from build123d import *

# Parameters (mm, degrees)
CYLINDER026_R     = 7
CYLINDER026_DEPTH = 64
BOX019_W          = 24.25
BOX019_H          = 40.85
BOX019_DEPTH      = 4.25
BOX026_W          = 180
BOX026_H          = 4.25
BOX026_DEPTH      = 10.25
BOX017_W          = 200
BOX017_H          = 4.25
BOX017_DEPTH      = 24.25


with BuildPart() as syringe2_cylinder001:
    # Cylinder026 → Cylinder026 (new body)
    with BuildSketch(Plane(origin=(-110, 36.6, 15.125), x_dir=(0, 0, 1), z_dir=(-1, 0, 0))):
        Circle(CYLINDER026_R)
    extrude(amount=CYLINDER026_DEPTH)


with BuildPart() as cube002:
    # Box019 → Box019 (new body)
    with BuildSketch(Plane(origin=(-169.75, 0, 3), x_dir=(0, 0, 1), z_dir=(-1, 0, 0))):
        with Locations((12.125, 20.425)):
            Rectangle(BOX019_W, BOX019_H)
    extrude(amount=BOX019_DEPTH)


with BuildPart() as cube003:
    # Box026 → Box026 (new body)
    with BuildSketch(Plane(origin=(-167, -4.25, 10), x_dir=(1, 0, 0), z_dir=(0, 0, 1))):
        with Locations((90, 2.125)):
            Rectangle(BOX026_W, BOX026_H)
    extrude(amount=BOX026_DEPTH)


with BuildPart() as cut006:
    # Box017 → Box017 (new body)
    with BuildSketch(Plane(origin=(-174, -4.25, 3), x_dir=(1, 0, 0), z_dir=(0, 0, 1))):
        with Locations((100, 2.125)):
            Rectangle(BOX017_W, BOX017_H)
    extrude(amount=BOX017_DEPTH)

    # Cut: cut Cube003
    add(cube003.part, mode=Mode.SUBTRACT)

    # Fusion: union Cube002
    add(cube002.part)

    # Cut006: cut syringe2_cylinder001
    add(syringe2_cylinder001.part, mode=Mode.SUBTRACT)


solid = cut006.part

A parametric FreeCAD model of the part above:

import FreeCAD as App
import Part
import Sketcher

V = App.Vector
Q = App.Units.Quantity

doc = App.newDocument("Part")
params = doc.addObject("Spreadsheet::Sheet", "Params")
for row, (alias, value) in enumerate([
    ("sketch1_diameter", "14 mm"),
    ("pad1_length", "64 mm"),
    ("sketch2_width", "40.85 mm"),
    ("sketch2_height", "24.25 mm"),
    ("pad2_length", "4.25 mm"),
    ("sketch3_width", "180 mm"),
    ("sketch3_height", "4.25 mm"),
    ("pad3_length", "10.25 mm"),
    ("sketch4_width", "200 mm"),
    ("sketch4_height", "4.25 mm"),
    ("pad4_length", "24.25 mm"),
], start=1):
    params.set(f"A{row}", alias)
    params.set(f"B{row}", "=" + value)
    params.setAlias(f"B{row}", alias)

body = doc.addObject("PartDesign::Body", "Body")

sketch1 = doc.addObject("Sketcher::SketchObject", "Sketch")
body.addObject(sketch1)
sketch1.AttachmentSupport = (doc.YZ_Plane, [""])
sketch1.MapMode = "FlatFace"
sketch1.AttachmentOffset = App.Placement(V(0, 0, -110), App.Rotation())
sketch1.addGeometry(Part.Circle(V(37, 15, 0), V(0, 0, 1), 7), False)
sketch1.addConstraint([
    Sketcher.Constraint("Diameter", 0, Q("14 mm")),
    Sketcher.Constraint("DistanceX", -1, 1, 0, 3, Q("36.6 mm")),
    Sketcher.Constraint("DistanceY", -1, 1, 0, 3, Q("15.125 mm")),
])
sketch1.setExpression("Constraints[0]", "Params.sketch1_diameter")
pad1 = doc.addObject("PartDesign::Pad", "Pad")
body.addObject(pad1)
pad1.Profile = sketch1
pad1.setExpression("Length", "Params.pad1_length")
pad1.Reversed = True
body2 = doc.addObject("PartDesign::Body", "Body001")

sketch2 = doc.addObject("Sketcher::SketchObject", "Sketch001")
body2.addObject(sketch2)
sketch2.AttachmentSupport = (doc.getObject("YZ_Plane001"), [""])
sketch2.MapMode = "FlatFace"
sketch2.AttachmentOffset = App.Placement(V(0, 0, -169.75), App.Rotation())
sketch2.addGeometry([
    Part.LineSegment(V(41, 3, 0), V(0, 3, 0)),
    Part.LineSegment(V(0, 3, 0), V(0, 27, 0)),
    Part.LineSegment(V(0, 27, 0), V(41, 27, 0)),
    Part.LineSegment(V(41, 27, 0), V(41, 3, 0)),
], False)
sketch2.addConstraint([
    Sketcher.Constraint("Coincident", 0, 2, 1, 1),
    Sketcher.Constraint("Coincident", 1, 2, 2, 1),
    Sketcher.Constraint("Coincident", 2, 2, 3, 1),
    Sketcher.Constraint("Coincident", 3, 2, 0, 1),
    Sketcher.Constraint("Horizontal", 0),
    Sketcher.Constraint("Vertical", 1),
    Sketcher.Constraint("Horizontal", 2),
    Sketcher.Constraint("Vertical", 3),
    Sketcher.Constraint("PointOnObject", 0, 2, -2),
    Sketcher.Constraint("DistanceY", -1, 1, 0, 2, Q("3 mm")),
    Sketcher.Constraint("DistanceX", 0, 2, 0, 1, Q("40.85 mm")),
    Sketcher.Constraint("DistanceY", 1, 1, 1, 2, Q("24.25 mm")),
])
sketch2.setExpression("Constraints[10]", "Params.sketch2_width")
sketch2.setExpression("Constraints[11]", "Params.sketch2_height")
pad2 = doc.addObject("PartDesign::Pad", "Pad001")
body2.addObject(pad2)
pad2.Profile = sketch2
pad2.setExpression("Length", "Params.pad2_length")
pad2.Reversed = True
body3 = doc.addObject("PartDesign::Body", "Body002")

sketch3 = doc.addObject("Sketcher::SketchObject", "Sketch002")
body3.addObject(sketch3)
sketch3.AttachmentSupport = (doc.getObject("XY_Plane002"), [""])
sketch3.MapMode = "FlatFace"
sketch3.AttachmentOffset = App.Placement(V(0, 0, 10), App.Rotation())
sketch3.addGeometry([
    Part.LineSegment(V(-167, 0, 0), V(-167, -4.2, 0)),
    Part.LineSegment(V(-167, -4.2, 0), V(13, -4.2, 0)),
    Part.LineSegment(V(13, -4.2, 0), V(13, 0, 0)),
    Part.LineSegment(V(13, 0, 0), V(-167, 0, 0)),
], False)
sketch3.addConstraint([
    Sketcher.Constraint("Coincident", 0, 2, 1, 1),
    Sketcher.Constraint("Coincident", 1, 2, 2, 1),
    Sketcher.Constraint("Coincident", 2, 2, 3, 1),
    Sketcher.Constraint("Coincident", 3, 2, 0, 1),
    Sketcher.Constraint("Vertical", 0),
    Sketcher.Constraint("Horizontal", 1),
    Sketcher.Constraint("Vertical", 2),
    Sketcher.Constraint("Horizontal", 3),
    Sketcher.Constraint("PointOnObject", 2, 2, -1),
    Sketcher.Constraint("DistanceX", 1, 1, 1, 2, Q("180 mm")),
    Sketcher.Constraint("DistanceX", 0, 2, -1, 1, Q("167 mm")),
    Sketcher.Constraint("DistanceY", 0, 2, 0, 1, Q("4.25 mm")),
])
sketch3.setExpression("Constraints[9]", "Params.sketch3_width")
sketch3.setExpression("Constraints[11]", "Params.sketch3_height")
pad3 = doc.addObject("PartDesign::Pad", "Pad002")
body3.addObject(pad3)
pad3.Profile = sketch3
pad3.setExpression("Length", "Params.pad3_length")
body4 = doc.addObject("PartDesign::Body", "Body003")

sketch4 = doc.addObject("Sketcher::SketchObject", "Sketch003")
body4.addObject(sketch4)
sketch4.AttachmentSupport = (doc.getObject("XY_Plane003"), [""])
sketch4.MapMode = "FlatFace"
sketch4.AttachmentOffset = App.Placement(V(0, 0, 3), App.Rotation())
sketch4.addGeometry([
    Part.LineSegment(V(-174, 0, 0), V(-174, -4.2, 0)),
    Part.LineSegment(V(-174, -4.2, 0), V(26, -4.2, 0)),
    Part.LineSegment(V(26, -4.2, 0), V(26, 0, 0)),
    Part.LineSegment(V(26, 0, 0), V(-174, 0, 0)),
], False)
sketch4.addConstraint([
    Sketcher.Constraint("Coincident", 0, 2, 1, 1),
    Sketcher.Constraint("Coincident", 1, 2, 2, 1),
    Sketcher.Constraint("Coincident", 2, 2, 3, 1),
    Sketcher.Constraint("Coincident", 3, 2, 0, 1),
    Sketcher.Constraint("Vertical", 0),
    Sketcher.Constraint("Horizontal", 1),
    Sketcher.Constraint("Vertical", 2),
    Sketcher.Constraint("Horizontal", 3),
    Sketcher.Constraint("PointOnObject", 2, 2, -1),
    Sketcher.Constraint("DistanceX", 1, 1, 1, 2, Q("200 mm")),
    Sketcher.Constraint("DistanceX", 0, 2, -1, 1, Q("174 mm")),
    Sketcher.Constraint("DistanceY", 0, 2, 0, 1, Q("4.25 mm")),
])
sketch4.setExpression("Constraints[9]", "Params.sketch4_width")
sketch4.setExpression("Constraints[11]", "Params.sketch4_height")
pad4 = doc.addObject("PartDesign::Pad", "Pad003")
body4.addObject(pad4)
pad4.Profile = sketch4
pad4.setExpression("Length", "Params.pad4_length")
doc.recompute()

boolean = doc.addObject("PartDesign::Boolean", "Boolean")
body4.addObject(boolean)
boolean.Type = "Cut"
boolean.addObjects([body3])
doc.recompute()

boolean2 = doc.addObject("PartDesign::Boolean", "Boolean001")
body4.addObject(boolean2)
boolean2.Type = "Fuse"
boolean2.addObjects([body2])
doc.recompute()

boolean3 = doc.addObject("PartDesign::Boolean", "Boolean002")
body4.addObject(boolean3)
boolean3.Type = "Cut"
boolean3.addObjects([body])

doc.recompute()
